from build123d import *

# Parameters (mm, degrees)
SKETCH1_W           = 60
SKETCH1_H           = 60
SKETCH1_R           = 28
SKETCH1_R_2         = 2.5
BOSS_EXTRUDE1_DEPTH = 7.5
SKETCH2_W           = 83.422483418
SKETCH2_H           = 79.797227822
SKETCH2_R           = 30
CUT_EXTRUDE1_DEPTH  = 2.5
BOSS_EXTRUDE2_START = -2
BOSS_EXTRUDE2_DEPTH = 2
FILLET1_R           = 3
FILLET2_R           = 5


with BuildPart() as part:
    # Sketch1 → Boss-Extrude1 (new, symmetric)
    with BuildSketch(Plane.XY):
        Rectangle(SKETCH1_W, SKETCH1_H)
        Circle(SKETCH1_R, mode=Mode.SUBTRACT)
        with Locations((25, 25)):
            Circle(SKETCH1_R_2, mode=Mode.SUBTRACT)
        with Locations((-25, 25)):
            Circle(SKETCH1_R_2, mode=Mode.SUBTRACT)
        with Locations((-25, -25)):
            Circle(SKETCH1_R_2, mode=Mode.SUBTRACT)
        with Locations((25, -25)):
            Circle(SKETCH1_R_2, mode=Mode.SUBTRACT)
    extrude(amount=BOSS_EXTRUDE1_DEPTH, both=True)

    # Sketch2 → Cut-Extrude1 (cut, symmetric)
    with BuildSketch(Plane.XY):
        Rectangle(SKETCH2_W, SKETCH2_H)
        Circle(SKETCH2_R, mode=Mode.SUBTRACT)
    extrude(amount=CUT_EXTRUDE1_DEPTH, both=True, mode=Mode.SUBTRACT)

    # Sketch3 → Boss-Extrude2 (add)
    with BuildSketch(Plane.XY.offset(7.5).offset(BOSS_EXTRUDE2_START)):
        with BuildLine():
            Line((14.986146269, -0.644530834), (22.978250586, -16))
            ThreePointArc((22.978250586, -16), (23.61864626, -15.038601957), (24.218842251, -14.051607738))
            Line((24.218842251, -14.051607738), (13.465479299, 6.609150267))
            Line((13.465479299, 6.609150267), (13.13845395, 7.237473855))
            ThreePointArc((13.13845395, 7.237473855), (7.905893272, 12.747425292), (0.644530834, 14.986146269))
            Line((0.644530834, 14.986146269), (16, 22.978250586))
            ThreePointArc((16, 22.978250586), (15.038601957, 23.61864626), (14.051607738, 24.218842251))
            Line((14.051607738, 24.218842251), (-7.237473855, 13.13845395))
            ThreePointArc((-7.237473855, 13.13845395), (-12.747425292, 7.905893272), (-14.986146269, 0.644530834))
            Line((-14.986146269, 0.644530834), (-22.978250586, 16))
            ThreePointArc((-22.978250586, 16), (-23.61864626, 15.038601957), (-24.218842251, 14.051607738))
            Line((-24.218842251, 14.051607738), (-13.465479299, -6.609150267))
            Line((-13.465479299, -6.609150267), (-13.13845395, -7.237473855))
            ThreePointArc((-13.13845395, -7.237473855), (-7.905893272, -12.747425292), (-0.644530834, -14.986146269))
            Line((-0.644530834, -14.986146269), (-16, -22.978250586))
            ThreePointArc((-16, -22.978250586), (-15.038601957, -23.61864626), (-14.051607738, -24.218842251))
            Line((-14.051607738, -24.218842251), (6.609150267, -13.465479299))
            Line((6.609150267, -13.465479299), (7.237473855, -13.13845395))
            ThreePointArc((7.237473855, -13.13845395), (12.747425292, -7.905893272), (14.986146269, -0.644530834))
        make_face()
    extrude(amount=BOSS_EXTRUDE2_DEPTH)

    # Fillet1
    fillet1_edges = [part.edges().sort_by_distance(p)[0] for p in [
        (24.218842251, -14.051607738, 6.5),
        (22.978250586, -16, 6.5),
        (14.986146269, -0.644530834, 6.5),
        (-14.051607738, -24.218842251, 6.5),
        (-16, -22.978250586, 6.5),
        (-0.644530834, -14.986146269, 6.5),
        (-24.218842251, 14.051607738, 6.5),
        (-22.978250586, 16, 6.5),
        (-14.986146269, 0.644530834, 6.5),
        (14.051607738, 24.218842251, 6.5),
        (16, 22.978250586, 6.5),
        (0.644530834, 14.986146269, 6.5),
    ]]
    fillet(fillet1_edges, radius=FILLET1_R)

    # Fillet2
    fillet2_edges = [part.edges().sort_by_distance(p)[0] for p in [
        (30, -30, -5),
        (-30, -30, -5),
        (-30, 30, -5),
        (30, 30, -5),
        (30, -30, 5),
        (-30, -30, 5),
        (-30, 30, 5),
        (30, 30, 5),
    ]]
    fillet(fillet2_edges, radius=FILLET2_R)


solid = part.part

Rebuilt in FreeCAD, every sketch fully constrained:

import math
import FreeCAD as App
import Part
import Sketcher
from FreeCAD import Vector
Q = App.Units.Quantity


def edges_at(feature, points):
    """Names of the edges that pass closest to the given points."""
    edges = feature.Shape.Edges
    near = lambda p: min(range(len(edges)), key=lambda i: edges[i].distToShape(Part.Vertex(*p))[0])
    return sorted({f"Edge{near(p) + 1}" for p in points})

doc = App.newDocument("Part")
body = doc.addObject("PartDesign::Body", "Body")

sketch1 = doc.addObject("Sketcher::SketchObject", "Sketch")
body.addObject(sketch1)
sketch1.AttachmentSupport = (doc.XY_Plane, [""])
sketch1.MapMode = "FlatFace"
sketch1.addGeometry(Part.LineSegment(Vector(-30, 30, 0), Vector(-30, -30, 0)), False)
sketch1.addGeometry(Part.LineSegment(Vector(-30, -30, 0), Vector(30, -30, 0)), False)
sketch1.addGeometry(Part.LineSegment(Vector(30, -30, 0), Vector(30, 30, 0)), False)
sketch1.addGeometry(Part.LineSegment(Vector(30, 30, 0), Vector(-30, 30, 0)), False)
sketch1.addGeometry(Part.Circle(Vector(-25, -25, 0), Vector(0, 0, 1), 2.5), False)
sketch1.addGeometry(Part.Circle(Vector(25, -25, 0), Vector(0, 0, 1), 2.5), False)
sketch1.addGeometry(Part.Circle(Vector(-25, 25, 0), Vector(0, 0, 1), 2.5), False)
sketch1.addGeometry(Part.Circle(Vector(0, 0, 0), Vector(0, 0, 1), 28), False)
sketch1.addGeometry(Part.Circle(Vector(25, 25, 0), Vector(0, 0, 1), 2.5), False)
sketch1.addConstraint(Sketcher.Constraint("Coincident", 0, 2, 1, 1))
sketch1.addConstraint(Sketcher.Constraint("Coincident", 1, 2, 2, 1))
sketch1.addConstraint(Sketcher.Constraint("Coincident", 2, 2, 3, 1))
sketch1.addConstraint(Sketcher.Constraint("Coincident", 3, 2, 0, 1))
sketch1.addConstraint(Sketcher.Constraint("Vertical", 0))
sketch1.addConstraint(Sketcher.Constraint("Horizontal", 1))
sketch1.addConstraint(Sketcher.Constraint("Vertical", 2))
sketch1.addConstraint(Sketcher.Constraint("Horizontal", 3))
sketch1.addConstraint(Sketcher.Constraint("Coincident", 7, 3, -1, 1))
sketch1.addConstraint(Sketcher.Constraint("Equal", 4, 5))
sketch1.addConstraint(Sketcher.Constraint("Equal", 5, 6))
sketch1.addConstraint(Sketcher.Constraint("Equal", 6, 8))
sketch1.addConstraint(Sketcher.Constraint("Symmetric", 5, 3, 6, 3, -1, 1))
sketch1.addConstraint(Sketcher.Constraint("Symmetric", 4, 3, 8, 3, -1, 1))
sketch1.addConstraint(Sketcher.Constraint("Symmetric", 0, 2, 2, 2, -1, 1))
sketch1.addConstraint(Sketcher.Constraint("Symmetric", 4, 3, 5, 3, -2))
sketch1.addConstraint(Sketcher.Constraint("Equal", 3, 0))
sketch1.addConstraint(Sketcher.Constraint("Diameter", 4, Q("5 mm")))
sketch1.addConstraint(Sketcher.Constraint("Diameter", 7, Q("56 mm")))
sketch1.addConstraint(Sketcher.Constraint("DistanceX", 1, 1, 1, 2, Q("60 mm")))
sketch1.addConstraint(Sketcher.Constraint("DistanceX", 4, 3, -1, 1, Q("25 mm")))
sketch1.addConstraint(Sketcher.Constraint("DistanceY", 4, 3, -1, 1, Q("25 mm")))
pad1 = doc.addObject("PartDesign::Pad", "Pad")
body.addObject(pad1)
pad1.Profile = sketch1
pad1.Length = 15
pad1.Midplane = True

sketch2 = doc.addObject("Sketcher::SketchObject", "Sketch001")
body.addObject(sketch2)
sketch2.AttachmentSupport = (doc.XY_Plane, [""])
sketch2.MapMode = "FlatFace"
sketch2.addGeometry(Part.LineSegment(Vector(-41.711242, 39.898614, 0), Vector(-41.711242, -39.898614, 0)), False)
sketch2.addGeometry(Part.LineSegment(Vector(-41.711242, -39.898614, 0), Vector(41.711242, -39.898614, 0)), False)
sketch2.addGeometry(Part.LineSegment(Vector(41.711242, -39.898614, 0), Vector(41.711242, 39.898614, 0)), False)
sketch2.addGeometry(Part.LineSegment(Vector(41.711242, 39.898614, 0), Vector(-41.711242, 39.898614, 0)), False)
sketch2.addGeometry(Part.Circle(Vector(0, 0, 0), Vector(0, 0, 1), 30), False)
sketch2.addConstraint(Sketcher.Constraint("Coincident", 0, 2, 1, 1))
sketch2.addConstraint(Sketcher.Constraint("Coincident", 1, 2, 2, 1))
sketch2.addConstraint(Sketcher.Constraint("Coincident", 2, 2, 3, 1))
sketch2.addConstraint(Sketcher.Constraint("Coincident", 3, 2, 0, 1))
sketch2.addConstraint(Sketcher.Constraint("Vertical", 0))
sketch2.addConstraint(Sketcher.Constraint("Horizontal", 1))
sketch2.addConstraint(Sketcher.Constraint("Vertical", 2))
sketch2.addConstraint(Sketcher.Constraint("Horizontal", 3))
sketch2.addConstraint(Sketcher.Constraint("Coincident", 4, 3, -1, 1))
sketch2.addConstraint(Sketcher.Constraint("Symmetric", 0, 2, 2, 2, -1, 1))
sketch2.addConstraint(Sketcher.Constraint("Diameter", 4, Q("60 mm")))
sketch2.addConstraint(Sketcher.Constraint("DistanceX", 1, 1, 1, 2, Q("83.422483 mm")))
sketch2.addConstraint(Sketcher.Constraint("DistanceY", 0, 2, 0, 1, Q("79.797228 mm")))
pocket1 = doc.addObject("PartDesign::Pocket", "Pocket")
body.addObject(pocket1)
pocket1.Profile = sketch2
pocket1.Length = 5
pocket1.Midplane = True

sketch3 = doc.addObject("Sketcher::SketchObject", "Sketch002")
body.addObject(sketch3)
sketch3.AttachmentSupport = (doc.XY_Plane, [""])
sketch3.MapMode = "FlatFace"
sketch3.AttachmentOffset = App.Placement(Vector(0, 0, 5.5), App.Rotation())
sketch3.addGeometry(Part.LineSegment(Vector(14.986146, -0.644531, 0), Vector(22.978251, -16, 0)), False)
sketch3.addGeometry(Part.ArcOfCircle(Part.Circle(Vector(0, 0, 0), Vector(0, 0, 1), 28), math.radians(-34.849905), math.radians(-30.122016)), False)
sketch3.addGeometry(Part.LineSegment(Vector(24.218842, -14.051608, 0), Vector(13.465479, 6.60915, 0)), False)
sketch3.addGeometry(Part.LineSegment(Vector(13.465479, 6.60915, 0), Vector(13.138454, 7.237474, 0)), False)
sketch3.addGeometry(Part.ArcOfCircle(Part.Circle(Vector(0, 0, 0), Vector(0, 0, 1), 15), math.radians(28.848695), math.radians(87.537315)), False)
sketch3.addGeometry(Part.LineSegment(Vector(0.644531, 14.986146, 0), Vector(16, 22.978251, 0)), False)
sketch3.addGeometry(Part.ArcOfCircle(Part.Circle(Vector(0, 0, 0), Vector(0, 0, 1), 28), math.radians(55.150095), math.radians(59.877984)), False)
sketch3.addGeometry(Part.LineSegment(Vector(14.051608, 24.218842, 0), Vector(-7.237474, 13.138454, 0)), False)
sketch3.addGeometry(Part.ArcOfCircle(Part.Circle(Vector(0, 0, 0), Vector(0, 0, 1), 15), math.radians(118.848695), math.radians(177.537315)), False)
sketch3.addGeometry(Part.LineSegment(Vector(-14.986146, 0.644531, 0), Vector(-22.978251, 16, 0)), False)
sketch3.addGeometry(Part.ArcOfCircle(Part.Circle(Vector(0, 0, 0), Vector(0, 0, 1), 28), math.radians(145.150095), math.radians(149.877984)), False)
sketch3.addGeometry(Part.LineSegment(Vector(-24.218842, 14.051608, 0), Vector(-13.465479, -6.60915, 0)), False)
sketch3.addGeometry(Part.LineSegment(Vector(-13.465479, -6.60915, 0), Vector(-13.138454, -7.237474, 0)), False)
sketch3.addGeometry(Part.ArcOfCircle(Part.Circle(Vector(0, 0, 0), Vector(0, 0, 1), 15), math.radians(-151.151305), math.radians(-92.462685)), False)
sketch3.addGeometry(Part.LineSegment(Vector(-0.644531, -14.986146, 0), Vector(-16, -22.978251, 0)), False)
sketch3.addGeometry(Part.ArcOfCircle(Part.Circle(Vector(0, 0, 0), Vector(0, 0, 1), 28), math.radians(-124.849905), math.radians(-120.122016)), False)
sketch3.addGeometry(Part.LineSegment(Vector(-14.051608, -24.218842, 0), Vector(6.60915, -13.465479, 0)), False)
sketch3.addGeometry(Part.LineSegment(Vector(6.60915, -13.465479, 0), Vector(7.237474, -13.138454, 0)), False)
sketch3.addGeometry(Part.ArcOfCircle(Part.Circle(Vector(0, 0, 0), Vector(0, 0, 1), 15), math.radians(-61.151305), math.radians(-2.462685)), False)
sketch3.addConstraint(Sketcher.Constraint("Coincident", 0, 2, 1, 1))
sketch3.addConstraint(Sketcher.Constraint("Coincident", 1, 2, 2, 1))
sketch3.addConstraint(Sketcher.Constraint("Coincident", 2, 2, 3, 1))
sketch3.addConstraint(Sketcher.Constraint("Coincident", 3, 2, 4, 1))
sketch3.addConstraint(Sketcher.Constraint("Coincident", 4, 2, 5, 1))
sketch3.addConstraint(Sketcher.Constraint("Coincident", 5, 2, 6, 1))
sketch3.addConstraint(Sketcher.Constraint("Coincident", 6, 2, 7, 1))
sketch3.addConstraint(Sketcher.Constraint("Coincident", 7, 2, 8, 1))
sketch3.addConstraint(Sketcher.Constraint("Coincident", 8, 2, 9, 1))
sketch3.addConstraint(Sketcher.Constraint("Coincident", 9, 2, 10, 1))
sketch3.addConstraint(Sketcher.Constraint("Coincident", 10, 2, 11, 1))
sketch3.addConstraint(Sketcher.Constraint("Coincident", 11, 2, 12, 1))
sketch3.addConstraint(Sketcher.Constraint("Coincident", 12, 2, 13, 1))
sketch3.addConstraint(Sketcher.Constraint("Coincident", 13, 2, 14, 1))
sketch3.addConstraint(Sketcher.Constraint("Coincident", 14, 2, 15, 1))
sketch3.addConstraint(Sketcher.Constraint("Coincident", 15, 2, 16, 1))
sketch3.addConstraint(Sketcher.Constraint("Coincident", 16, 2, 17, 1))
sketch3.addConstraint(Sketcher.Constraint("Coincident", 17, 2, 18, 1))
sketch3.addConstraint(Sketcher.Constraint("Coincident", 18, 2, 0, 1))
sketch3.addConstraint(Sketcher.Constraint("Coincident", 1, 3, -1, 1))
sketch3.addConstraint(Sketcher.Constraint("Coincident", 4, 3, -1, 1))
sketch3.addConstraint(Sketcher.Constraint("Coincident", 6, 3, -1, 1))
sketch3.addConstraint(Sketcher.Constraint("Coincident", 8, 3, -1, 1))
sketch3.addConstraint(Sketcher.Constraint("Coincident", 10, 3, -1, 1))
sketch3.addConstraint(Sketcher.Constraint("Coincident", 13, 3, -1, 1))
sketch3.addConstraint(Sketcher.Constraint("Coincident", 15, 3, -1, 1))
sketch3.addConstraint(Sketcher.Constraint("Coincident", 18, 3, -1, 1))
sketch3.addConstraint(Sketcher.Constraint("Equal", 1, 6))
sketch3.addConstraint(Sketcher.Constraint("Equal", 4, 8))
sketch3.addConstraint(Sketcher.Constraint("Equal", 6, 10))
sketch3.addConstraint(Sketcher.Constraint("Equal", 8, 13))
sketch3.addConstraint(Sketcher.Constraint("Equal", 10, 15))
sketch3.addConstraint(Sketcher.Constraint("Equal", 13, 18))
sketch3.addConstraint(Sketcher.Constraint("Symmetric", 2, 2, 11, 2, -1, 1))
sketch3.addConstraint(Sketcher.Constraint("Parallel", 0, 2))
sketch3.addConstraint(Sketcher.Constraint("Parallel", 2, 3))
sketch3.addConstraint(Sketcher.Constraint("Perpendicular", 3, 5))
sketch3.addConstraint(Sketcher.Constraint("Parallel", 5, 7))
sketch3.addConstraint(Sketcher.Constraint("Perpendicular", 7, 9))
sketch3.addConstraint(Sketcher.Constraint("Parallel", 9, 11))
sketch3.addConstraint(Sketcher.Constraint("Parallel", 11, 12))
sketch3.addConstraint(Sketcher.Constraint("Perpendicular", 12, 14))
sketch3.addConstraint(Sketcher.Constraint("Parallel", 14, 16))
sketch3.addConstraint(Sketcher.Constraint("Parallel", 16, 17))
sketch3.addConstraint(Sketcher.Constraint("Equal", 0, 5))
sketch3.addConstraint(Sketcher.Constraint("Equal", 5, 9))
sketch3.addConstraint(Sketcher.Constraint("Equal", 9, 14))
sketch3.addConstraint(Sketcher.Constraint("Equal", 11, 16))
sketch3.addConstraint(Sketcher.Constraint("Equal", 12, 17))
sketch3.addConstraint(Sketcher.Constraint("Radius", 1, Q("28 mm")))
sketch3.addConstraint(Sketcher.Constraint("Radius", 4, Q("15 mm")))
sketch3.addConstraint(Sketcher.Constraint("Distance", 7, Q("24 mm")))
sketch3.addConstraint(Sketcher.Constraint("DistanceY", 0, 2, -1, 1, Q("16 mm")))
sketch3.addConstraint(Sketcher.Constraint("DistanceY", 2, 2, 5, 2, Q("16.3691 mm")))
sketch3.addConstraint(Sketcher.Constraint("Distance", 0, Q("17.310811 mm")))
sketch3.addConstraint(Sketcher.Constraint("DistanceX", -1, 1, 2, 2, Q("13.465479 mm")))
pad2 = doc.addObject("PartDesign::Pad", "Pad001")
body.addObject(pad2)
pad2.Profile = sketch3
pad2.Length = 2
doc.recompute()

fillet = doc.addObject("PartDesign::Fillet", "Fillet")
body.addObject(fillet)
fillet.Base = (pad2, edges_at(pad2, [
    (24.219, -14.052, 6.5),
    (22.978, -16, 6.5),
    (14.986, -0.645, 6.5),
    (-14.052, -24.219, 6.5),
    (-16, -22.978, 6.5),
    (-0.645, -14.986, 6.5),
    (-24.219, 14.052, 6.5),
    (-22.978, 16, 6.5),
    (-14.986, 0.645, 6.5),
    (14.052, 24.219, 6.5),
    (16, 22.978, 6.5),
    (0.645, 14.986, 6.5),
]))
fillet.Radius = 3
doc.recompute()

fillet2 = doc.addObject("PartDesign::Fillet", "Fillet001")
body.addObject(fillet2)
fillet2.Base = (fillet, edges_at(fillet, [
    (30, -30, -5),
    (-30, -30, -5),
    (-30, 30, -5),
    (30, 30, -5),
    (30, -30, 5),
    (-30, -30, 5),
    (-30, 30, 5),
    (30, 30, 5),
]))
fillet2.Radius = 5

doc.recompute()
